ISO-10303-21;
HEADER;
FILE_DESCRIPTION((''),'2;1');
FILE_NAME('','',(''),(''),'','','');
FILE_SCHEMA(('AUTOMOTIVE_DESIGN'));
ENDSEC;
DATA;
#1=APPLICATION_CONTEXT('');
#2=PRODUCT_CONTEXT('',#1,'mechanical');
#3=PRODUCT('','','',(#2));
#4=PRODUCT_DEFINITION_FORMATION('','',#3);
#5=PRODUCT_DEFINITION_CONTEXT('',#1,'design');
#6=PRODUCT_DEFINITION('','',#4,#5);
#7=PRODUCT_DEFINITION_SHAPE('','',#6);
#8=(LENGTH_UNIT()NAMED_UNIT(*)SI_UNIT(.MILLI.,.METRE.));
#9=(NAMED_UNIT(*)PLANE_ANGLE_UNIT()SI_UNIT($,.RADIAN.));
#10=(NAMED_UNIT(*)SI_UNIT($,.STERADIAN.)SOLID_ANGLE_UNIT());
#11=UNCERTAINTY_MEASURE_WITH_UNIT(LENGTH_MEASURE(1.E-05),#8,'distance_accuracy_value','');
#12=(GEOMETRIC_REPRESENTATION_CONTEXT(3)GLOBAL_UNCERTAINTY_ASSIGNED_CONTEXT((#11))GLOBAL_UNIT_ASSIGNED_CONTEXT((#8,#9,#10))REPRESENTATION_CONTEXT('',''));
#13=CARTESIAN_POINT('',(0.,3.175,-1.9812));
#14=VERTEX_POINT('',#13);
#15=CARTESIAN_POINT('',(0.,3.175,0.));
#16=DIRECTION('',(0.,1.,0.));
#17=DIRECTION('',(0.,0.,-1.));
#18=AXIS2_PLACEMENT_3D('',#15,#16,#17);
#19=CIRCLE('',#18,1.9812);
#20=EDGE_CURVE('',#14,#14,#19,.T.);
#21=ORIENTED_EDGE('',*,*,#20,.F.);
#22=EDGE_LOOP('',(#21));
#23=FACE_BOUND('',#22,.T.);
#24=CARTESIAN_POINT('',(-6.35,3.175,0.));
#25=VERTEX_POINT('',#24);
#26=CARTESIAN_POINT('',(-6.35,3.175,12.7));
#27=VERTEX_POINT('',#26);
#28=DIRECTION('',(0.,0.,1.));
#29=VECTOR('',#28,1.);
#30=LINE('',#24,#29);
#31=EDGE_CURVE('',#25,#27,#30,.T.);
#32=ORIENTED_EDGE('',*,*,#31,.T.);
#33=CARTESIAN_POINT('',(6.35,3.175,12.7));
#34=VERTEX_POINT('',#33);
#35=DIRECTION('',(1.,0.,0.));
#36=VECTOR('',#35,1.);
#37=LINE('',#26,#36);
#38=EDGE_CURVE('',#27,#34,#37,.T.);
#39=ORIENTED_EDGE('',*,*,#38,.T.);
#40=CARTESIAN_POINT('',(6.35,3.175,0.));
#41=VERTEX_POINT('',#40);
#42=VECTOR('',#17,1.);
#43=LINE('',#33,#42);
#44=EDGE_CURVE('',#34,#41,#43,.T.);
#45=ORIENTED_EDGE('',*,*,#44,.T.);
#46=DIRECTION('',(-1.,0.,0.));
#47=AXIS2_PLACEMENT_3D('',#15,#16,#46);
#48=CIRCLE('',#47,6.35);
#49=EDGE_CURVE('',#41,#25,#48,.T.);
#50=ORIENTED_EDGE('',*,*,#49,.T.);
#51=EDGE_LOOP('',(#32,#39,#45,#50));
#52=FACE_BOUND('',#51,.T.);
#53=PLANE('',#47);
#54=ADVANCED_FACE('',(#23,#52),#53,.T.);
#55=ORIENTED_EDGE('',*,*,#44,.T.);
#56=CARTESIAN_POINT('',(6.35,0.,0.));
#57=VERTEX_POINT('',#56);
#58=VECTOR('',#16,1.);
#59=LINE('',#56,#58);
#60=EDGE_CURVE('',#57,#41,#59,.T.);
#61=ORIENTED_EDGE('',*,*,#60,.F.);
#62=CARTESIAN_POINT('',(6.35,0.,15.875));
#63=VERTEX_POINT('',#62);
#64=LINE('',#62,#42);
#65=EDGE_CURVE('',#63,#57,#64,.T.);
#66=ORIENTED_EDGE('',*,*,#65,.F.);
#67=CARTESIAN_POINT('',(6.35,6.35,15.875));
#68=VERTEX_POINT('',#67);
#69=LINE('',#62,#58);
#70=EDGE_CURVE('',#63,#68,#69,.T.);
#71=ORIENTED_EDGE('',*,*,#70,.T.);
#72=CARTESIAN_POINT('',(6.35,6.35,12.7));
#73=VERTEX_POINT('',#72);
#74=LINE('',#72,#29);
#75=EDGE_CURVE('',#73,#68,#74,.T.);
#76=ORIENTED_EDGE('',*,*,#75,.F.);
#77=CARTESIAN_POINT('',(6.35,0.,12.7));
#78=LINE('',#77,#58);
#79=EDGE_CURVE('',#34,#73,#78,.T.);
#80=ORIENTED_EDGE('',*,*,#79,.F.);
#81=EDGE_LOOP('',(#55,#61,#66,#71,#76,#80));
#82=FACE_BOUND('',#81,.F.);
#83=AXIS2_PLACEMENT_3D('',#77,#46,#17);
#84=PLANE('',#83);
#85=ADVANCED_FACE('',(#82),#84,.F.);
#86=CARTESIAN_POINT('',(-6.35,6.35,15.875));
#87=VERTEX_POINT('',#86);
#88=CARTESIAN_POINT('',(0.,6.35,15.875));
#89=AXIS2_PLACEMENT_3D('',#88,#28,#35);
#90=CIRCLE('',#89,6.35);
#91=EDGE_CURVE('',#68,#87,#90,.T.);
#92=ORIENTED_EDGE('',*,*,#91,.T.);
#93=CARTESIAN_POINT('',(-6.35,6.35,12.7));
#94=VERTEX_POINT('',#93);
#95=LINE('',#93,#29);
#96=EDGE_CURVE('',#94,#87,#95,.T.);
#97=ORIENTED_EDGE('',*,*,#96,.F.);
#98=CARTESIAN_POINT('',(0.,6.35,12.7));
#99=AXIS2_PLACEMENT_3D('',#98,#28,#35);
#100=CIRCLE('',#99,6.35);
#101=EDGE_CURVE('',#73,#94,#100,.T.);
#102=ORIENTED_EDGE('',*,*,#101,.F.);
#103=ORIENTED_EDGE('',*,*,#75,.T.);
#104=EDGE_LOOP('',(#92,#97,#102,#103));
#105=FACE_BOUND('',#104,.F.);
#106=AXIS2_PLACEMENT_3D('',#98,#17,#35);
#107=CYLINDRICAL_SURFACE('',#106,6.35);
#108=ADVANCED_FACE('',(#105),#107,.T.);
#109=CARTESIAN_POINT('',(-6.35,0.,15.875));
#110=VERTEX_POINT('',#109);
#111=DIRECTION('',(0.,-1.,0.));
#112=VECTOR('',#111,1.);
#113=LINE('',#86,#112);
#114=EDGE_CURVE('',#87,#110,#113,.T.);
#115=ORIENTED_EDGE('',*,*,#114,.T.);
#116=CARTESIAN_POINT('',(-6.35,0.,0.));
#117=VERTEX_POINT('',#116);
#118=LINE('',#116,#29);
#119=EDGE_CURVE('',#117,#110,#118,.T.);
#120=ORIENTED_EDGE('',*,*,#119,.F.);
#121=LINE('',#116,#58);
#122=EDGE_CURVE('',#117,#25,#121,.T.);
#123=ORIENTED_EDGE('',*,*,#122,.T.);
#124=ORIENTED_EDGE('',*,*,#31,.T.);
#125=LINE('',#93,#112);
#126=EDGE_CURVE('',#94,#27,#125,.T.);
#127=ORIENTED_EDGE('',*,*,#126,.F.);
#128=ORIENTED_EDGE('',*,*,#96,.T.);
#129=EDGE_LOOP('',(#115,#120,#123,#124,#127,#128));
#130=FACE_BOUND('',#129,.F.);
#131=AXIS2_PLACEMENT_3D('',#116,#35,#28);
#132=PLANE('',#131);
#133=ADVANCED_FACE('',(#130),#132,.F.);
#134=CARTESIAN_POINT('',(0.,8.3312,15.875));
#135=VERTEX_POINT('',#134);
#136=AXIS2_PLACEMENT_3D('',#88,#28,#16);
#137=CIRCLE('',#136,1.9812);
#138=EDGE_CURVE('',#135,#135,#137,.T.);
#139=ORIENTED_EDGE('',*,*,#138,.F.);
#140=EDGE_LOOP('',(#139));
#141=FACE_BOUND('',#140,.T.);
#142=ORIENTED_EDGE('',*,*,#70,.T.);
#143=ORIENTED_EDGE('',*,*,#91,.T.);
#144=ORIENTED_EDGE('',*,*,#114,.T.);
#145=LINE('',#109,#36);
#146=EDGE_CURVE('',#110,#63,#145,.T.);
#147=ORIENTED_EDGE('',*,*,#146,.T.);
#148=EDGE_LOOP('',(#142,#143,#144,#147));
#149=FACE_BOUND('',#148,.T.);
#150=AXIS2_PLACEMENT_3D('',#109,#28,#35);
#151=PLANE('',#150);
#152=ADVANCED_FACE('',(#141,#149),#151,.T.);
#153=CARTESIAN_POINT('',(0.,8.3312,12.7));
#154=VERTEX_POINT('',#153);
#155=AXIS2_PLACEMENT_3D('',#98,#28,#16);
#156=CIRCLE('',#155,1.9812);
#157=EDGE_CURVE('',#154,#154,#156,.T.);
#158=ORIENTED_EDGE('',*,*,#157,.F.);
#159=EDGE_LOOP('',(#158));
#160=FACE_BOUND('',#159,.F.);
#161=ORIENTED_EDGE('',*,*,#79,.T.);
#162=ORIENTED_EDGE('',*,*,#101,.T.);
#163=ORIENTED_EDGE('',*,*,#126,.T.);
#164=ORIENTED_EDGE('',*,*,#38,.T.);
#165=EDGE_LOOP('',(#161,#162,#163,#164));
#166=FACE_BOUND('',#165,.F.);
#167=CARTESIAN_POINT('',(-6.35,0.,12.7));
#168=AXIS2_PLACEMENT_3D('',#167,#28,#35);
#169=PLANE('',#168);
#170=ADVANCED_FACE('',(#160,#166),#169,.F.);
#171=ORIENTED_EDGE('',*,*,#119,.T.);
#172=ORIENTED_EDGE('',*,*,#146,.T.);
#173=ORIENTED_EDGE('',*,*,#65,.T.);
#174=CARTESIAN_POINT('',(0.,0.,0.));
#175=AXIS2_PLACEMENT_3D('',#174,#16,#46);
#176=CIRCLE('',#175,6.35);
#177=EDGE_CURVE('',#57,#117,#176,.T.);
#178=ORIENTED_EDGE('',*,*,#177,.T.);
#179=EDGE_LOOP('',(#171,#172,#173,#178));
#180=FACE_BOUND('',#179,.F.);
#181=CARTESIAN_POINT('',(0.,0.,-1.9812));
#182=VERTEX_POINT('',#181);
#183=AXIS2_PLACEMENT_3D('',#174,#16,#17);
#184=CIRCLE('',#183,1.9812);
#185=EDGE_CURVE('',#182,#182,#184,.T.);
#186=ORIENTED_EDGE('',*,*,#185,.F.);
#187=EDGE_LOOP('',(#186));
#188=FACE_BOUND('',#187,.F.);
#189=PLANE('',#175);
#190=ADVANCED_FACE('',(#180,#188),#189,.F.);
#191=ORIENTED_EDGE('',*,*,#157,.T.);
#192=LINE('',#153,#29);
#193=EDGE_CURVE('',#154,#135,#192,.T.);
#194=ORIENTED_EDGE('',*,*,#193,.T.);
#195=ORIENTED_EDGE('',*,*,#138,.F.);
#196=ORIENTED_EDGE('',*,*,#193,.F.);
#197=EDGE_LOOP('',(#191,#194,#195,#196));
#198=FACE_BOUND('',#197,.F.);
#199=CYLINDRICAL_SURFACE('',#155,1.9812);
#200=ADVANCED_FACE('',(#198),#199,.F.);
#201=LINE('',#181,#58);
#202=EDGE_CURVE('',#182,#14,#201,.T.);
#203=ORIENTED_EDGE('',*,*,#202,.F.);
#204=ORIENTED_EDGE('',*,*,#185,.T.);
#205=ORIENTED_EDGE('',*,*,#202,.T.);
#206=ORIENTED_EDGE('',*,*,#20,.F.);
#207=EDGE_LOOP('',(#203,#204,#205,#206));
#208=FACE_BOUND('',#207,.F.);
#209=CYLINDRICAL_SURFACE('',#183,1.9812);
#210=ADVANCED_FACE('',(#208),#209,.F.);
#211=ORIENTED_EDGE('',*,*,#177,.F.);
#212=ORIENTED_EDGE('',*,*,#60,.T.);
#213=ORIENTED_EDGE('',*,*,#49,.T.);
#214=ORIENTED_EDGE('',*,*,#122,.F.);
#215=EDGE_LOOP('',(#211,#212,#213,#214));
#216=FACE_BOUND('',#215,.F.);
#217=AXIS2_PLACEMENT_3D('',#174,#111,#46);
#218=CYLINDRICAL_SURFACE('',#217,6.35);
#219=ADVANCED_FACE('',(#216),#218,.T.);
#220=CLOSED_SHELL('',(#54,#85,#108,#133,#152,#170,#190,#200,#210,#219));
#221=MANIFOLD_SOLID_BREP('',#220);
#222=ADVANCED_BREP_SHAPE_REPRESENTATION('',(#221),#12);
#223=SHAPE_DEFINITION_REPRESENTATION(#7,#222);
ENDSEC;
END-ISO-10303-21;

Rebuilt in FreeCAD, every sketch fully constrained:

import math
import FreeCAD as App
import Part
import Sketcher
from FreeCAD import Vector
Q = App.Units.Quantity

doc = App.newDocument("Part")
body = doc.addObject("PartDesign::Body", "Body")

# Sketch on XZ plane
sketch1 = body.newObject("Sketcher::SketchObject", "Sketch")
sketch1.AttachmentSupport = (doc.getObject("XZ_Plane"), [""])
sketch1.MapMode = "FlatFace"
sketch1.addGeometry([
    Part.ArcOfCircle(Part.Circle(Vector(0, 0, 0), Vector(0, 0, 1), 6.35), math.radians(180), math.radians(360)),
    Part.LineSegment(Vector(-6.35, 0, 0), Vector(-6.35, 12.7, 0)),
    Part.LineSegment(Vector(-6.35, 12.7, 0), Vector(6.35, 12.7, 0)),
    Part.LineSegment(Vector(6.35, 12.7, 0), Vector(6.35, 0, 0)),
], False)
sketch1.addConstraint([
    Sketcher.Constraint("Tangent", 0, 1, 1, 1),
    Sketcher.Constraint("Coincident", 1, 2, 2, 1),
    Sketcher.Constraint("Coincident", 2, 2, 3, 1),
    Sketcher.Constraint("Tangent", 3, 2, 0, 2),
    Sketcher.Constraint("Vertical", 1),
    Sketcher.Constraint("Horizontal", 2),
    Sketcher.Constraint("Vertical", 3),
    Sketcher.Constraint("Coincident", 0, 3, -1, 1),
    Sketcher.Constraint("Equal", 2, 1),
    Sketcher.Constraint("Radius", 0, Q("0.25 in")),
])
pad1 = body.newObject("PartDesign::Pad", "Pad")
pad1.Profile = sketch1
pad1.Length = Q("0.125 in")
pad1.Reversed = True

# Sketch on XY plane
sketch2 = body.newObject("Sketcher::SketchObject", "Sketch001")
sketch2.AttachmentSupport = (doc.getObject("XY_Plane"), [""])
sketch2.MapMode = "FlatFace"
sketch2.AttachmentOffset = App.Placement(Vector(0, 0, 0.5 * 25.4), App.Rotation())
sketch2.addGeometry([
    Part.ArcOfCircle(Part.Circle(Vector(0, 6.35, 0), Vector(0, 0, 1), 6.35), math.radians(0), math.radians(180)),
    Part.LineSegment(Vector(-6.35, 6.35, 0), Vector(-6.35, 0, 0)),
    Part.LineSegment(Vector(-6.35, 0, 0), Vector(6.35, 0, 0)),
    Part.LineSegment(Vector(6.35, 0, 0), Vector(6.35, 6.35, 0)),
], False)
sketch2.addConstraint([
    Sketcher.Constraint("Tangent", 0, 2, 1, 1),
    Sketcher.Constraint("Coincident", 1, 2, 2, 1),
    Sketcher.Constraint("Coincident", 2, 2, 3, 1),
    Sketcher.Constraint("Tangent", 3, 2, 0, 1),
    Sketcher.Constraint("Vertical", 1),
    Sketcher.Constraint("Horizontal", 2),
    Sketcher.Constraint("Vertical", 3),
    Sketcher.Constraint("Symmetric", 1, 2, 2, 2, -1, 1),
    Sketcher.Constraint("Radius", 0, Q("0.25 in")),
    Sketcher.Constraint("DistanceY", 1, 2, 1, 1, Q("0.25 in")),
])
pad2 = body.newObject("PartDesign::Pad", "Pad001")
pad2.Profile = sketch2
pad2.Length = Q("0.125 in")

# Sketch on XZ plane
sketch3 = body.newObject("Sketcher::SketchObject", "Sketch002")
sketch3.AttachmentSupport = (doc.getObject("XZ_Plane"), [""])
sketch3.MapMode = "FlatFace"
sketch3.addGeometry(Part.Circle(Vector(0, 0, 0), Vector(0, 0, 1), 1.9812), False)
sketch3.addConstraint([
    Sketcher.Constraint("Coincident", 0, 3, -1, 1),
    Sketcher.Constraint("Diameter", 0, Q("0.156 in")),
])
doc.recompute()
hole = body.newObject("PartDesign::Hole", "Hole")
hole.Profile = sketch3
hole.ThreadType = "None"
hole.Diameter = Q("0.156 in")
hole.DepthType = "Dimension"
hole.Depth = Q("0.536 in")
hole.DrillPoint = "Flat"

# Sketch on XY plane
sketch4 = body.newObject("Sketcher::SketchObject", "Sketch003")
sketch4.AttachmentSupport = (doc.getObject("XY_Plane"), [""])
sketch4.MapMode = "FlatFace"
sketch4.AttachmentOffset = App.Placement(Vector(0, 0, 0.5 * 25.4), App.Rotation())
sketch4.addGeometry(Part.Circle(Vector(0, 6.35, 0), Vector(0, 0, 1), 1.9812), False)
sketch4.addConstraint([
    Sketcher.Constraint("PointOnObject", 0, 3, -2),
    Sketcher.Constraint("Diameter", 0, Q("0.156 in")),
    Sketcher.Constraint("DistanceY", -1, 1, 0, 3, Q("0.25 in")),
])
doc.recompute()
hole2 = body.newObject("PartDesign::Hole", "Hole001")
hole2.Profile = sketch4
hole2.ThreadType = "None"
hole2.Diameter = Q("0.156 in")
hole2.DepthType = "ThroughAll"
hole2.Reversed = True

doc.recompute()
